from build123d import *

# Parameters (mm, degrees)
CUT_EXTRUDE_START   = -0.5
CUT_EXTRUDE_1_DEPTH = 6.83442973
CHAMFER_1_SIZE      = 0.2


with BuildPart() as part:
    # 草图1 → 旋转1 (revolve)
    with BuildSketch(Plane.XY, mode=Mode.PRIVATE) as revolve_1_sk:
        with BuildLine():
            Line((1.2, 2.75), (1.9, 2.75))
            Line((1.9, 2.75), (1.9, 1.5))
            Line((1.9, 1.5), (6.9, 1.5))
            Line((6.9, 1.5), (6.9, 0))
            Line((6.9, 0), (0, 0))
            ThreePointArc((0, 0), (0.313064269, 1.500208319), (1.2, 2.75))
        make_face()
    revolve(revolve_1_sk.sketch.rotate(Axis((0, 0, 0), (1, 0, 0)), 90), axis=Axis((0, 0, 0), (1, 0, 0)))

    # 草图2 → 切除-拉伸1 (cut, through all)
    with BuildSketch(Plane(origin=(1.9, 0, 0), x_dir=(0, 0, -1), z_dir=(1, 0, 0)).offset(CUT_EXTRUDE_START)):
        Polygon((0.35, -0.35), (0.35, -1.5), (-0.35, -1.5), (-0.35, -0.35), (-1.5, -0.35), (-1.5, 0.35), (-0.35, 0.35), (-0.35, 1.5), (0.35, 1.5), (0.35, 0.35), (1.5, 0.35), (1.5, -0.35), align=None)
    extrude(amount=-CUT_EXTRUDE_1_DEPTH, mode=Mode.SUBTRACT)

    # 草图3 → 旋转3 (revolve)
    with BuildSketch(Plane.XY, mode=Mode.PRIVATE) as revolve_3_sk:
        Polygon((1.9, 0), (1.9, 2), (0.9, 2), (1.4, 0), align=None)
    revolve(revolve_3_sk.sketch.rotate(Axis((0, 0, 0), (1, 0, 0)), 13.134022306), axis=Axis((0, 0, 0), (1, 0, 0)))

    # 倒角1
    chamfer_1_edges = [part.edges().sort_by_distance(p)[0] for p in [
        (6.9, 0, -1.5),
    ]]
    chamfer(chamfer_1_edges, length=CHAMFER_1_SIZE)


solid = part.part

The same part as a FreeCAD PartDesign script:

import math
import FreeCAD as App
import Part
import Sketcher


def edges_at(feature, points):
    """Names of the edges that pass closest to the given points."""
    edges = feature.Shape.Edges
    near = lambda p: min(range(len(edges)), key=lambda i: edges[i].distToShape(Part.Vertex(*p))[0])
    return sorted({f"Edge{near(p) + 1}" for p in points})

doc = App.newDocument("Part")
params = doc.addObject("Spreadsheet::Sheet", "Params")
for row, (alias, value) in enumerate([
    ("sketch1_width", "5 mm"),
    ("sketch1_width2", "0.7 mm"),
    ("sketch1_width3", "6.9 mm"),
    ("sketch1_height", "1.5 mm"),
    ("sketch1_height2", "1.25 mm"),
    ("revolution_angle", "360 deg"),
    ("sketch2_width", "0.7 mm"),
    ("sketch2_width2", "1.15 mm"),
    ("sketch3_width", "1 mm"),
    ("sketch3_height", "2 mm"),
    ("sketch3_width2", "0.5 mm"),
    ("revolution2_angle", "360 deg"),
    ("chamfer_size", "0.2 mm"),
], start=1):
    params.set(f"A{row}", alias)
    params.set(f"B{row}", "=" + value)
    params.setAlias(f"B{row}", alias)

body = doc.addObject("PartDesign::Body", "Body")

# Sketch on XY plane
sketch1 = body.newObject("Sketcher::SketchObject", "Sketch")
sketch1.AttachmentSupport = (doc.getObject("XY_Plane"), [""])
sketch1.MapMode = "FlatFace"
sketch1.addGeometry([
    Part.LineSegment(App.Vector(1.9, 2.8, 0), App.Vector(1.2, 2.8, 0)),  # 0
    Part.ArcOfCircle(Part.Circle(App.Vector(3.8, 0, 0), App.Vector(0, 0, 1), 3.8), math.radians(133), math.radians(180)),  # 1
    Part.LineSegment(App.Vector(0, 0, 0), App.Vector(6.9, 0, 0)),  # 2
    Part.LineSegment(App.Vector(6.9, 0, 0), App.Vector(6.9, 1.5, 0)),  # 3
    Part.LineSegment(App.Vector(6.9, 1.5, 0), App.Vector(1.9, 1.5, 0)),  # 4
    Part.LineSegment(App.Vector(1.9, 1.5, 0), App.Vector(1.9, 2.8, 0)),  # 5
], False)
sketch1.addConstraint([
    Sketcher.Constraint("Coincident", 0, 2, 1, 1),
    Sketcher.Constraint("Coincident", 1, 2, 2, 1),
    Sketcher.Constraint("Coincident", 2, 2, 3, 1),
    Sketcher.Constraint("Coincident", 3, 2, 4, 1),
    Sketcher.Constraint("Coincident", 4, 2, 5, 1),
    Sketcher.Constraint("Coincident", 5, 2, 0, 1),
    Sketcher.Constraint("Horizontal", 0),
    Sketcher.Constraint("Horizontal", 2),
    Sketcher.Constraint("Vertical", 3),
    Sketcher.Constraint("Horizontal", 4),
    Sketcher.Constraint("Vertical", 5),
    Sketcher.Constraint("Coincident", 1, 2, -1, 1),
    Sketcher.Constraint("PointOnObject", 1, 3, -1),
    Sketcher.Constraint("DistanceX", 4, 2, 4, 1, 5.0),
    Sketcher.Constraint("DistanceX", 0, 2, 0, 1, 0.7),
    Sketcher.Constraint("DistanceX", 2, 1, 2, 2, 6.9),
    Sketcher.Constraint("DistanceY", 3, 1, 3, 2, 1.5),
    Sketcher.Constraint("DistanceY", 5, 1, 5, 2, 1.25),
])
sketch1.setExpression("Constraints[13]", "Params.sketch1_width")
sketch1.setExpression("Constraints[14]", "Params.sketch1_width2")
sketch1.setExpression("Constraints[15]", "Params.sketch1_width3")
sketch1.setExpression("Constraints[16]", "Params.sketch1_height")
sketch1.setExpression("Constraints[17]", "Params.sketch1_height2")
revolution = body.newObject("PartDesign::Revolution", "Revolution")
revolution.Profile = sketch1
revolution.ReferenceAxis = (sketch1, ["H_Axis"])
revolution.setExpression("Angle", "Params.revolution_angle")

# Sketch on YZ plane
sketch2 = body.newObject("Sketcher::SketchObject", "Sketch001")
sketch2.AttachmentSupport = (doc.getObject("YZ_Plane"), [""])
sketch2.MapMode = "FlatFace"
sketch2.AttachmentOffset = App.Placement(App.Vector(0, 0, 1.4), App.Rotation())
sketch2.addGeometry([
    Part.LineSegment(App.Vector(-1.5, -0.3, 0), App.Vector(-0.3, -0.3, 0)),  # 0
    Part.LineSegment(App.Vector(-0.3, -0.3, 0), App.Vector(-0.3, -1.5, 0)),  # 1
    Part.LineSegment(App.Vector(-0.3, -1.5, 0), App.Vector(0.3, -1.5, 0)),  # 2
    Part.LineSegment(App.Vector(0.3, -1.5, 0), App.Vector(0.3, -0.3, 0)),  # 3
    Part.LineSegment(App.Vector(0.3, -0.3, 0), App.Vector(1.5, -0.3, 0)),  # 4
    Part.LineSegment(App.Vector(1.5, -0.3, 0), App.Vector(1.5, 0.3, 0)),  # 5
    Part.LineSegment(App.Vector(1.5, 0.3, 0), App.Vector(0.3, 0.3, 0)),  # 6
    Part.LineSegment(App.Vector(0.3, 0.3, 0), App.Vector(0.3, 1.5, 0)),  # 7
    Part.LineSegment(App.Vector(0.3, 1.5, 0), App.Vector(-0.3, 1.5, 0)),  # 8
    Part.LineSegment(App.Vector(-0.3, 1.5, 0), App.Vector(-0.3, 0.3, 0)),  # 9
    Part.LineSegment(App.Vector(-0.3, 0.3, 0), App.Vector(-1.5, 0.3, 0)),  # 10
    Part.LineSegment(App.Vector(-1.5, 0.3, 0), App.Vector(-1.5, -0.3, 0)),  # 11
], False)
sketch2.addConstraint([
    Sketcher.Constraint("Coincident", 0, 2, 1, 1),
    Sketcher.Constraint("Coincident", 1, 2, 2, 1),
    Sketcher.Constraint("Coincident", 2, 2, 3, 1),
    Sketcher.Constraint("Coincident", 3, 2, 4, 1),
    Sketcher.Constraint("Coincident", 4, 2, 5, 1),
    Sketcher.Constraint("Coincident", 5, 2, 6, 1),
    Sketcher.Constraint("Coincident", 6, 2, 7, 1),
    Sketcher.Constraint("Coincident", 7, 2, 8, 1),
    Sketcher.Constraint("Coincident", 8, 2, 9, 1),
    Sketcher.Constraint("Coincident", 9, 2, 10, 1),
    Sketcher.Constraint("Coincident", 10, 2, 11, 1),
    Sketcher.Constraint("Coincident", 11, 2, 0, 1),
    Sketcher.Constraint("Horizontal", 0),
    Sketcher.Constraint("Vertical", 1),
    Sketcher.Constraint("Horizontal", 2),
    Sketcher.Constraint("Vertical", 3),
    Sketcher.Constraint("Horizontal", 4),
    Sketcher.Constraint("Vertical", 5),
    Sketcher.Constraint("Horizontal", 6),
    Sketcher.Constraint("Vertical", 7),
    Sketcher.Constraint("Horizontal", 8),
    Sketcher.Constraint("Vertical", 9),
    Sketcher.Constraint("Horizontal", 10),
    Sketcher.Constraint("Vertical", 11),
    Sketcher.Constraint("Symmetric", 0, 2, 6, 2, -1, 1),
    Sketcher.Constraint("Symmetric", 2, 2, 8, 2, -1, 1),
    Sketcher.Constraint("Symmetric", 4, 2, 10, 2, -1, 1),
    Sketcher.Constraint("Symmetric", 0, 2, 3, 2, -2),
    Sketcher.Constraint("Equal", 10, 1),
    Sketcher.Constraint("Equal", 8, 5),
    Sketcher.Constraint("DistanceX", 2, 1, 2, 2, 0.7),
    Sketcher.Constraint("DistanceX", 0, 1, 0, 2, 1.15),
])
sketch2.setExpression("Constraints[30]", "Params.sketch2_width")
sketch2.setExpression("Constraints[31]", "Params.sketch2_width2")
pocket1 = body.newObject("PartDesign::Pocket", "Pocket")
pocket1.Profile = sketch2
pocket1.Type = "ThroughAll"

# Sketch on XY plane
sketch3 = body.newObject("Sketcher::SketchObject", "Sketch002")
sketch3.AttachmentSupport = (doc.getObject("XY_Plane"), [""])
sketch3.MapMode = "FlatFace"
sketch3.addGeometry([
    Part.LineSegment(App.Vector(1.9, 0, 0), App.Vector(1.9, 2, 0)),
    Part.LineSegment(App.Vector(1.9, 2, 0), App.Vector(0.9, 2, 0)),
    Part.LineSegment(App.Vector(0.9, 2, 0), App.Vector(1.4, 0, 0)),
    Part.LineSegment(App.Vector(1.4, 0, 0), App.Vector(1.9, 0, 0)),
], False)
sketch3.addConstraint([
    Sketcher.Constraint("Coincident", 0, 2, 1, 1),
    Sketcher.Constraint("Coincident", 1, 2, 2, 1),
    Sketcher.Constraint("Coincident", 2, 2, 3, 1),
    Sketcher.Constraint("Coincident", 3, 2, 0, 1),
    Sketcher.Constraint("Vertical", 0),
    Sketcher.Constraint("Horizontal", 1),
    Sketcher.Constraint("Horizontal", 3),
    Sketcher.Constraint("PointOnObject", 2, 2, -1),
    Sketcher.Constraint("DistanceX", 1, 2, 1, 1, 1.0),
    Sketcher.Constraint("DistanceY", 0, 1, 0, 2, 2.0),
    Sketcher.Constraint("DistanceX", 3, 1, 3, 2, 0.5),
    Sketcher.Constraint("DistanceX", -1, 1, 0, 2, 1.9),
])
sketch3.setExpression("Constraints[8]", "Params.sketch3_width")
sketch3.setExpression("Constraints[9]", "Params.sketch3_height")
sketch3.setExpression("Constraints[10]", "Params.sketch3_width2")
revolution2 = body.newObject("PartDesign::Revolution", "Revolution001")
revolution2.Profile = sketch3
revolution2.ReferenceAxis = (sketch3, ["H_Axis"])
revolution2.setExpression("Angle", "Params.revolution2_angle")
doc.recompute()

chamfer = body.newObject("PartDesign::Chamfer", "Chamfer")
chamfer.Base = (revolution2, edges_at(revolution2, [(6.9, 0, -1.5)]))
chamfer.setExpression("Size", "Params.chamfer_size")

doc.recompute()
